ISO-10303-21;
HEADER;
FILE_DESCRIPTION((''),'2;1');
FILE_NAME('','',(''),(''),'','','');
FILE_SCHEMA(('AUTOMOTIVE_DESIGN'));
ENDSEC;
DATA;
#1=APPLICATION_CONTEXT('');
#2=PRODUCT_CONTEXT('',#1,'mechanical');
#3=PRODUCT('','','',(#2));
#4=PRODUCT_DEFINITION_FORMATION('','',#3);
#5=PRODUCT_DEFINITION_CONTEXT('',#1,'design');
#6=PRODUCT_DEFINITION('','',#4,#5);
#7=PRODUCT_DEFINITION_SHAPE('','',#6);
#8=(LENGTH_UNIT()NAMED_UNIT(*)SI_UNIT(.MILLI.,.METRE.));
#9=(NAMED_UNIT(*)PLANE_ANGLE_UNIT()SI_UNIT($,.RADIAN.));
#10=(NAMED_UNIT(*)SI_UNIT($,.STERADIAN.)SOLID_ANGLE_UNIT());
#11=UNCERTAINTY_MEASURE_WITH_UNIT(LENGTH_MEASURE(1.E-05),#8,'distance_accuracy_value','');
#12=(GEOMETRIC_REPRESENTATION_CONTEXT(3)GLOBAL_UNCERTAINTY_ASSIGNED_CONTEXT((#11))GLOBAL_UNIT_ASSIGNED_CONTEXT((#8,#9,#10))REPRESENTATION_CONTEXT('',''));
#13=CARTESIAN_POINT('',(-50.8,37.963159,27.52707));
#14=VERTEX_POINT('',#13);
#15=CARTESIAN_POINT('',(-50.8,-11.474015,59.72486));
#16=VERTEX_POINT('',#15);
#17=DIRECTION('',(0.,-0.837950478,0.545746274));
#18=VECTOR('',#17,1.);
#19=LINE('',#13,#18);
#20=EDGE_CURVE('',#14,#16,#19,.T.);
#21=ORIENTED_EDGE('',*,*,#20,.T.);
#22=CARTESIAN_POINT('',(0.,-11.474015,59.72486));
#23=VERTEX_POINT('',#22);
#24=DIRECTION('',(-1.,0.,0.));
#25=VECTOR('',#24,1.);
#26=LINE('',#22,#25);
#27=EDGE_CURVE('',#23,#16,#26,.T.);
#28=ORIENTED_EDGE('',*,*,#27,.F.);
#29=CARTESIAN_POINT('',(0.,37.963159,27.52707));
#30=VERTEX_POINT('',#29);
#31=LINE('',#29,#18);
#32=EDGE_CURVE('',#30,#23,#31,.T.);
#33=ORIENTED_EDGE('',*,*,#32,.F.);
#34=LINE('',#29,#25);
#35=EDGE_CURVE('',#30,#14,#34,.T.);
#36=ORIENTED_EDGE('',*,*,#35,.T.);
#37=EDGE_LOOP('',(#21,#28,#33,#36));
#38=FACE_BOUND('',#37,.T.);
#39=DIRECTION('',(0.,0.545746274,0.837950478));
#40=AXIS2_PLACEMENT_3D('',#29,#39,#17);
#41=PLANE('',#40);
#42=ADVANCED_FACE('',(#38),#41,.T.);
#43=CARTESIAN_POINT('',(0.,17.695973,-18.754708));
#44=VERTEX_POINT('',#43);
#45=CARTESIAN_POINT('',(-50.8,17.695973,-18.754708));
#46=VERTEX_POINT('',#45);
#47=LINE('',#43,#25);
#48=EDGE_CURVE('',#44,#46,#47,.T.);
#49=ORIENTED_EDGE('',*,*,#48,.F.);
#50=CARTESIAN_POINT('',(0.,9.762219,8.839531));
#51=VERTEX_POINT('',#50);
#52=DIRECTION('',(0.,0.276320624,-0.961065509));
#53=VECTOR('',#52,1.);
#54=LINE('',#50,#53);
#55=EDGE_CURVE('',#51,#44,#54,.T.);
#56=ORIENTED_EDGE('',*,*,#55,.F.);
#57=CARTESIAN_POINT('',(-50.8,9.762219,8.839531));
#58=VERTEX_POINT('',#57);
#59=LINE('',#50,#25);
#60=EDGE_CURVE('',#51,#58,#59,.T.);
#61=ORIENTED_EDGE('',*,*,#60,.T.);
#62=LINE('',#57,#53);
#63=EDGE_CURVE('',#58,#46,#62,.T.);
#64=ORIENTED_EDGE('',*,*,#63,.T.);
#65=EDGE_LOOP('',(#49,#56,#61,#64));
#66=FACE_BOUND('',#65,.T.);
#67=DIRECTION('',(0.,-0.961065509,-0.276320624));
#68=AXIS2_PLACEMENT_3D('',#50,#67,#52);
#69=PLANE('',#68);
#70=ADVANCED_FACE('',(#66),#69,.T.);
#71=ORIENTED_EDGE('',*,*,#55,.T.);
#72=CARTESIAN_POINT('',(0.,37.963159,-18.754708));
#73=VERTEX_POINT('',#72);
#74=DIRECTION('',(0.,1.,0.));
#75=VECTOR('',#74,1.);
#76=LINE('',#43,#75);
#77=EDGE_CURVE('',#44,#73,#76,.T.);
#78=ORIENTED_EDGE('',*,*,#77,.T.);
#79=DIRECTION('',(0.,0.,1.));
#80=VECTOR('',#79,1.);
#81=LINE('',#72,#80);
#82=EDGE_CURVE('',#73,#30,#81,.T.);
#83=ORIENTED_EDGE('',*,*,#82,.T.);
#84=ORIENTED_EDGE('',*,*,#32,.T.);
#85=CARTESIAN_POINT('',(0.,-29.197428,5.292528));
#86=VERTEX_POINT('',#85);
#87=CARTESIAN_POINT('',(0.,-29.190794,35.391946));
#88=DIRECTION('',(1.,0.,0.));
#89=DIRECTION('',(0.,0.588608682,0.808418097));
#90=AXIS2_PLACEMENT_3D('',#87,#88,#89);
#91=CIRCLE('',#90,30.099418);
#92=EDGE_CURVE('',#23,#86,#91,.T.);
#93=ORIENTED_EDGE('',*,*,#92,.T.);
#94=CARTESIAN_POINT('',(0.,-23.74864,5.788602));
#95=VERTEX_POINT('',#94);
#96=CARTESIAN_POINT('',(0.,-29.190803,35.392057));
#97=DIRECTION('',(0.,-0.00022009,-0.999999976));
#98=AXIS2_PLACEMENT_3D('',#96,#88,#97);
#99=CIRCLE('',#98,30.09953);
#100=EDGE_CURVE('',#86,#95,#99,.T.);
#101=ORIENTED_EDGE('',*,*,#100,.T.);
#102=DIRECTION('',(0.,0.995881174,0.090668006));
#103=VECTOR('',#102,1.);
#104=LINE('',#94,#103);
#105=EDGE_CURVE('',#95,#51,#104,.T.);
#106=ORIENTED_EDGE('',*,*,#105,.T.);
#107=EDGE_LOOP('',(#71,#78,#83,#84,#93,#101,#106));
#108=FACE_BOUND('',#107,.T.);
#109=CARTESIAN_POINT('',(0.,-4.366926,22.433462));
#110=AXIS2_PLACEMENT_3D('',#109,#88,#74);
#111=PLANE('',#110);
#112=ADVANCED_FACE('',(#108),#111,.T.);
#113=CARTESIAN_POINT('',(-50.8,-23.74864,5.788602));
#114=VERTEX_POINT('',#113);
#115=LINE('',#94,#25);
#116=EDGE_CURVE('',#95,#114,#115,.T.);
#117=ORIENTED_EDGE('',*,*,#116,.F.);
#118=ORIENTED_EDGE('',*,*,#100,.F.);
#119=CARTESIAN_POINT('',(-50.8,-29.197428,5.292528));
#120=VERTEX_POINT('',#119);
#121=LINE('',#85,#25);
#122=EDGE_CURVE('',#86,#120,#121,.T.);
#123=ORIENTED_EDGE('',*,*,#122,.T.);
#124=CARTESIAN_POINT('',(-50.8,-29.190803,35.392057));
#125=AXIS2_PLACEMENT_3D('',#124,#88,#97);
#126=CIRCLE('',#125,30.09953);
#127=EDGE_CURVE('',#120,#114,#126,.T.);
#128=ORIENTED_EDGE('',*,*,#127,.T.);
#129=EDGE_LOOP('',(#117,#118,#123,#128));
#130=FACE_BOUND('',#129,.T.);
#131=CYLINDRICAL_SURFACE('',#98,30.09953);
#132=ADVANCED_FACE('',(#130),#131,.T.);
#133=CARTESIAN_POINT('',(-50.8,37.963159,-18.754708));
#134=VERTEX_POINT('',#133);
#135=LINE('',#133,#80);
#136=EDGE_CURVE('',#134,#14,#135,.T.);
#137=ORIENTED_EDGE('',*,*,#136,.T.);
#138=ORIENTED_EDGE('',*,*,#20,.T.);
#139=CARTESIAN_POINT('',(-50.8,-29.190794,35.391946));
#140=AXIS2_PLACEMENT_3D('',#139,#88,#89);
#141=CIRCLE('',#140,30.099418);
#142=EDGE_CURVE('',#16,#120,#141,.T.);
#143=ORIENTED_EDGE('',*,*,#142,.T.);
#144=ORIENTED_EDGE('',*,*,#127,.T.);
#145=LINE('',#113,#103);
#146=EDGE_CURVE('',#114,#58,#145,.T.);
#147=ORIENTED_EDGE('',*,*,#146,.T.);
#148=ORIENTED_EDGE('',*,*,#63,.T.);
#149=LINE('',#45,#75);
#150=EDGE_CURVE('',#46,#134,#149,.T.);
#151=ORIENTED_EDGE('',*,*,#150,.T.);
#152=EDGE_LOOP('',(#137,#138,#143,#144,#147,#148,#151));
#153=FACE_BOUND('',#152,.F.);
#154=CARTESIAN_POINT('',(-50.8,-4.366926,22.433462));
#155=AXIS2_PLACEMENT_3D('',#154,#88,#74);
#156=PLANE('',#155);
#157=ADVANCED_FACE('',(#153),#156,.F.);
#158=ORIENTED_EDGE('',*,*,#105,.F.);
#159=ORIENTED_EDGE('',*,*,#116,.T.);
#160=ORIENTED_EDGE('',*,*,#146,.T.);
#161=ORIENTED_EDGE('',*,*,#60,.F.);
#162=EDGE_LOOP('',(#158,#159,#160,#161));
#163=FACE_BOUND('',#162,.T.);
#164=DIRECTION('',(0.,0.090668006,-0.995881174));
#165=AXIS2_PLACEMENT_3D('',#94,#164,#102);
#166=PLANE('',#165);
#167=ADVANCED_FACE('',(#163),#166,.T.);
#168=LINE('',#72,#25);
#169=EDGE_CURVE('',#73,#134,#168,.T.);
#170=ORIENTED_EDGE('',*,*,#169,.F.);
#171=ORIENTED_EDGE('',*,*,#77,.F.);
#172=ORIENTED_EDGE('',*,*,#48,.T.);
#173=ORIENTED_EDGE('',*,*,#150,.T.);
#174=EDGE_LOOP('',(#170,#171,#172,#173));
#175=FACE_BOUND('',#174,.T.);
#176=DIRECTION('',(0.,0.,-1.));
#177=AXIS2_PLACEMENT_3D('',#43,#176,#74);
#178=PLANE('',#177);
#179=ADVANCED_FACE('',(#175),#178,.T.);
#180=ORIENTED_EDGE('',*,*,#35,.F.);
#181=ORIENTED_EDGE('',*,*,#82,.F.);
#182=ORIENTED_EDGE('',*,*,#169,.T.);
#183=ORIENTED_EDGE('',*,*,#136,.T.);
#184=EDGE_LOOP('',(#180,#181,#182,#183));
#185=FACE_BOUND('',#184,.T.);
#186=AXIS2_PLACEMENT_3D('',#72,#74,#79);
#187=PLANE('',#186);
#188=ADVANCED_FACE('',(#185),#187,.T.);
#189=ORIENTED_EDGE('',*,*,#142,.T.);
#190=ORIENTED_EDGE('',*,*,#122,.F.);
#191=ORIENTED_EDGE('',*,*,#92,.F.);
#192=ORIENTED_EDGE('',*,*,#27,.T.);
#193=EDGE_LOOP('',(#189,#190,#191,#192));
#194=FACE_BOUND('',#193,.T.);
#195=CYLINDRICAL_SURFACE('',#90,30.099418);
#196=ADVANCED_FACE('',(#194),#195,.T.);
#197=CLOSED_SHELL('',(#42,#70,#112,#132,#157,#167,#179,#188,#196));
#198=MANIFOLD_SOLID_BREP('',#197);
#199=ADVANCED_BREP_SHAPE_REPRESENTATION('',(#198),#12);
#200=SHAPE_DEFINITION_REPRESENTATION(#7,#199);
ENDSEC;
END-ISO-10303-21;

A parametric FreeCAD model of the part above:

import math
import FreeCAD as App
import Part
import Sketcher
from FreeCAD import Vector
Q = App.Units.Quantity

doc = App.newDocument("Part")
params = doc.addObject("Spreadsheet::Sheet", "Params")
for row, (alias, value) in enumerate([
    ("pad1_length", "2 in"),
], start=1):
    params.set(f"A{row}", alias)
    params.set(f"B{row}", "=" + value)
    params.setAlias(f"B{row}", alias)

body = doc.addObject("PartDesign::Body", "Body")

sketch1 = body.newObject("Sketcher::SketchObject", "Sketch")
sketch1.AttachmentSupport = (doc.getObject("YZ_Plane"), [""])
sketch1.MapMode = "FlatFace"
sketch1.addGeometry([
    Part.LineSegment(Vector(38, 28, 0), Vector(-11, 60, 0)),
    Part.ArcOfCircle(Part.Circle(Vector(-29, 35, 0), Vector(0, 0, 1), 30), math.radians(54), math.radians(270)),
    Part.ArcOfCircle(Part.Circle(Vector(-29, 35, 0), Vector(0, 0, 1), 30), math.radians(-90.01), math.radians(-79.58)),
    Part.LineSegment(Vector(-24, 6, 0), Vector(10, 9, 0)),
    Part.LineSegment(Vector(10, 9, 0), Vector(18, -19, 0)),
    Part.LineSegment(Vector(18, -19, 0), Vector(38, -19, 0)),
    Part.LineSegment(Vector(38, -19, 0), Vector(38, 28, 0)),
], False)
sketch1.addConstraint([
    Sketcher.Constraint("Coincident", 0, 2, 1, 1),
    Sketcher.Constraint("Tangent", 1, 2, 2, 1),
    Sketcher.Constraint("Coincident", 2, 2, 3, 1),
    Sketcher.Constraint("Coincident", 3, 2, 4, 1),
    Sketcher.Constraint("Coincident", 4, 2, 5, 1),
    Sketcher.Constraint("Coincident", 5, 2, 6, 1),
    Sketcher.Constraint("Coincident", 6, 2, 0, 1),
    Sketcher.Constraint("Horizontal", 5),
    Sketcher.Constraint("Vertical", 6),
    Sketcher.Constraint("Radius", 1, Q("30.099418 mm")),
    Sketcher.Constraint("Radius", 2, Q("30.09953 mm")),
    Sketcher.Constraint("DistanceY", 6, 1, 6, 2, Q("46.281778 mm")),
    Sketcher.Constraint("DistanceX", 1, 2, 4, 2, Q("46.893401 mm")),
    Sketcher.Constraint("DistanceX", 2, 2, 5, 2, Q("61.711799 mm")),
    Sketcher.Constraint("Distance", 4, Q("28.712131 mm")),
    Sketcher.Constraint("DistanceX", 5, 1, 5, 2, Q("20.267186 mm")),
    Sketcher.Constraint("DistanceY", -1, 1, 0, 2, Q("59.72486 mm")),
    Sketcher.Constraint("DistanceY", -1, 1, 1, 2, Q("5.292528 mm")),
    Sketcher.Constraint("DistanceX", 2, 2, -1, 1, Q("23.74864 mm")),
    Sketcher.Constraint("DistanceX", -1, 1, 3, 2, Q("9.762219 mm")),
    Sketcher.Constraint("DistanceY", -1, 1, 3, 2, Q("8.839531 mm")),
    Sketcher.Constraint("DistanceY", 2, 2, 3, 2, Q("3.050929 mm")),
])
pad1 = body.newObject("PartDesign::Pad", "Pad")
pad1.Profile = sketch1
pad1.setExpression("Length", "Params.pad1_length")
pad1.Reversed = True

doc.recompute()
